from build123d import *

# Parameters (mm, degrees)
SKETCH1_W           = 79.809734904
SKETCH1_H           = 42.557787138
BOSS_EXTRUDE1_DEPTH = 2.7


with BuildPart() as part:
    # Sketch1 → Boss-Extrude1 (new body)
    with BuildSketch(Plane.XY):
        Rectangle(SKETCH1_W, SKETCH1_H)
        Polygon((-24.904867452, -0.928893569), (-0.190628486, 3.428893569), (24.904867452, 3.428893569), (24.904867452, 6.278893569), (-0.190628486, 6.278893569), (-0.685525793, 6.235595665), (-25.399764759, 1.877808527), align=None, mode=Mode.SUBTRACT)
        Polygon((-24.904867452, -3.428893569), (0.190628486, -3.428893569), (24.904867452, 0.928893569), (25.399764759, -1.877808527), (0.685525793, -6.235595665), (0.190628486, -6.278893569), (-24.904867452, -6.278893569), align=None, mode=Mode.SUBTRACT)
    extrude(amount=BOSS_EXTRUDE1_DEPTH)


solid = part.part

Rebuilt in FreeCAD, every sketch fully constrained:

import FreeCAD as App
import Part
import Sketcher
from FreeCAD import Vector
Q = App.Units.Quantity


def add_polygon(sketch, points):
    """Adds a closed chain of lines whose ends are joined by coincident constraints."""
    first, n = sketch.GeometryCount, len(points)
    for a, b in zip(points, points[1:] + points[:1]):
        sketch.addGeometry(Part.LineSegment(App.Vector(*a, 0), App.Vector(*b, 0)), False)
    for i in range(n):
        sketch.addConstraint(Sketcher.Constraint("Coincident", first + i, 2, first + (i + 1) % n, 1))

doc = App.newDocument("Part")
body = doc.addObject("PartDesign::Body", "Body")

# Sketch on XY plane
sketch1 = doc.addObject("Sketcher::SketchObject", "Sketch")
body.addObject(sketch1)
sketch1.AttachmentSupport = (doc.XY_Plane, [""])
sketch1.MapMode = "FlatFace"
add_polygon(sketch1, [(-39.9, 21.28), (-39.9, -21.28), (39.9, -21.28), (39.9, 21.28)])  # lines 0-3
add_polygon(sketch1, [(-24.9, -6.28), (-24.9, -3.43), (0.19, -3.43), (24.9, 0.93), (25.4, -1.88), (0.69, -6.24), (0.19, -6.28)])  # lines 4-10
add_polygon(sketch1, [(-0.19, 3.43), (-24.9, -0.93), (-25.4, 1.88), (-0.69, 6.24), (-0.19, 6.28), (24.9, 6.28), (24.9, 3.43)])  # lines 11-17
sketch1.addConstraint([
    Sketcher.Constraint("Vertical", 0),
    Sketcher.Constraint("Horizontal", 1),
    Sketcher.Constraint("Vertical", 2),
    Sketcher.Constraint("Horizontal", 3),
    Sketcher.Constraint("Vertical", 4),
    Sketcher.Constraint("Horizontal", 5),
    Sketcher.Constraint("Horizontal", 10),
    Sketcher.Constraint("Horizontal", 15),
    Sketcher.Constraint("Vertical", 16),
    Sketcher.Constraint("Horizontal", 17),
    Sketcher.Constraint("Symmetric", 0, 2, 2, 2, -1, 1),
    Sketcher.Constraint("Symmetric", 6, 2, 11, 2, -1, 1),
    Sketcher.Constraint("Symmetric", 7, 2, 12, 2, -1, 1),
    Sketcher.Constraint("Symmetric", 8, 2, 13, 2, -1, 1),
    Sketcher.Constraint("Symmetric", 9, 2, 14, 2, -1, 1),
    Sketcher.Constraint("Symmetric", 4, 2, 16, 2, -1, 1),
    Sketcher.Constraint("Perpendicular", 6, 7),
    Sketcher.Constraint("Perpendicular", 7, 8),
    Sketcher.Constraint("Parallel", 8, 11),
    Sketcher.Constraint("Vertical", 5, 2, 9, 2),
    Sketcher.Constraint("Vertical", 10, 2, 11, 2),
    Sketcher.Constraint("Equal", 6, 8),
    Sketcher.Constraint("Angle", 6, Q("10 deg")),
    Sketcher.Constraint("Angle", 9, Q("-175 deg")),
    Sketcher.Constraint("DistanceX", 0, 2, 4, 2, 15.0),
    Sketcher.Constraint("DistanceY", 0, 2, 10, 2, 15.0),
    Sketcher.Constraint("DistanceY", 4, 1, 4, 2, 2.85),
    Sketcher.Constraint("DistanceY", 4, 2, 11, 2, 2.5),
    Sketcher.Constraint("DistanceX", 1, 1, 1, 2, 79.809735),
    Sketcher.Constraint("DistanceX", 5, 1, 5, 2, 25.095496),
])
pad1 = doc.addObject("PartDesign::Pad", "Pad")
body.addObject(pad1)
pad1.Profile = sketch1
pad1.Length = 2.7

doc.recompute()
